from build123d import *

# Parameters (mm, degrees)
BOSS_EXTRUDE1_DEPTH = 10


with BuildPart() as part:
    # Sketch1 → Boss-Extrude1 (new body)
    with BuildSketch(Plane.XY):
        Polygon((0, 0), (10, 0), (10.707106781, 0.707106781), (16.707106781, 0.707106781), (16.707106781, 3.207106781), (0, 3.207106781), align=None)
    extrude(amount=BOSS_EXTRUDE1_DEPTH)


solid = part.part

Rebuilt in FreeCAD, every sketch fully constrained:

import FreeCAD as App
import Part
import Sketcher
Q = App.Units.Quantity

doc = App.newDocument("Part")
body = doc.addObject("PartDesign::Body", "Body")

sketch1 = body.newObject("Sketcher::SketchObject", "Sketch")
sketch1.AttachmentSupport = (doc.getObject("XY_Plane"), [""])
sketch1.MapMode = "FlatFace"
sketch1.addGeometry([
    Part.LineSegment(App.Vector(0, 0, 0), App.Vector(10, 0, 0)),
    Part.LineSegment(App.Vector(10, 0, 0), App.Vector(10.7, 0.7, 0)),
    Part.LineSegment(App.Vector(10.7, 0.7, 0), App.Vector(16.7, 0.7, 0)),
    Part.LineSegment(App.Vector(16.7, 0.7, 0), App.Vector(16.7, 3.2, 0)),
    Part.LineSegment(App.Vector(16.7, 3.2, 0), App.Vector(0, 3.2, 0)),
    Part.LineSegment(App.Vector(0, 3.2, 0), App.Vector(0, 0, 0)),
], False)
sketch1.addConstraint([
    Sketcher.Constraint("Coincident", 0, 2, 1, 1),
    Sketcher.Constraint("Coincident", 1, 2, 2, 1),
    Sketcher.Constraint("Coincident", 2, 2, 3, 1),
    Sketcher.Constraint("Coincident", 3, 2, 4, 1),
    Sketcher.Constraint("Coincident", 4, 2, 5, 1),
    Sketcher.Constraint("Coincident", 5, 2, 0, 1),
    Sketcher.Constraint("Horizontal", 0),
    Sketcher.Constraint("Horizontal", 2),
    Sketcher.Constraint("Vertical", 3),
    Sketcher.Constraint("Horizontal", 4),
    Sketcher.Constraint("Vertical", 5),
    Sketcher.Constraint("Coincident", 5, 2, -1, 1),
    Sketcher.Constraint("DistanceX", 0, 1, 0, 2, Q("10 mm")),
    Sketcher.Constraint("DistanceX", 2, 1, 2, 2, Q("6 mm")),
    Sketcher.Constraint("Angle", 1, Q("45 deg")),
    Sketcher.Constraint("Distance", 1, Q("1 mm")),
    Sketcher.Constraint("DistanceY", 3, 1, 3, 2, Q("2.5 mm")),
])
pad1 = body.newObject("PartDesign::Pad", "Pad")
pad1.Profile = sketch1
pad1.Length = 10

doc.recompute()
